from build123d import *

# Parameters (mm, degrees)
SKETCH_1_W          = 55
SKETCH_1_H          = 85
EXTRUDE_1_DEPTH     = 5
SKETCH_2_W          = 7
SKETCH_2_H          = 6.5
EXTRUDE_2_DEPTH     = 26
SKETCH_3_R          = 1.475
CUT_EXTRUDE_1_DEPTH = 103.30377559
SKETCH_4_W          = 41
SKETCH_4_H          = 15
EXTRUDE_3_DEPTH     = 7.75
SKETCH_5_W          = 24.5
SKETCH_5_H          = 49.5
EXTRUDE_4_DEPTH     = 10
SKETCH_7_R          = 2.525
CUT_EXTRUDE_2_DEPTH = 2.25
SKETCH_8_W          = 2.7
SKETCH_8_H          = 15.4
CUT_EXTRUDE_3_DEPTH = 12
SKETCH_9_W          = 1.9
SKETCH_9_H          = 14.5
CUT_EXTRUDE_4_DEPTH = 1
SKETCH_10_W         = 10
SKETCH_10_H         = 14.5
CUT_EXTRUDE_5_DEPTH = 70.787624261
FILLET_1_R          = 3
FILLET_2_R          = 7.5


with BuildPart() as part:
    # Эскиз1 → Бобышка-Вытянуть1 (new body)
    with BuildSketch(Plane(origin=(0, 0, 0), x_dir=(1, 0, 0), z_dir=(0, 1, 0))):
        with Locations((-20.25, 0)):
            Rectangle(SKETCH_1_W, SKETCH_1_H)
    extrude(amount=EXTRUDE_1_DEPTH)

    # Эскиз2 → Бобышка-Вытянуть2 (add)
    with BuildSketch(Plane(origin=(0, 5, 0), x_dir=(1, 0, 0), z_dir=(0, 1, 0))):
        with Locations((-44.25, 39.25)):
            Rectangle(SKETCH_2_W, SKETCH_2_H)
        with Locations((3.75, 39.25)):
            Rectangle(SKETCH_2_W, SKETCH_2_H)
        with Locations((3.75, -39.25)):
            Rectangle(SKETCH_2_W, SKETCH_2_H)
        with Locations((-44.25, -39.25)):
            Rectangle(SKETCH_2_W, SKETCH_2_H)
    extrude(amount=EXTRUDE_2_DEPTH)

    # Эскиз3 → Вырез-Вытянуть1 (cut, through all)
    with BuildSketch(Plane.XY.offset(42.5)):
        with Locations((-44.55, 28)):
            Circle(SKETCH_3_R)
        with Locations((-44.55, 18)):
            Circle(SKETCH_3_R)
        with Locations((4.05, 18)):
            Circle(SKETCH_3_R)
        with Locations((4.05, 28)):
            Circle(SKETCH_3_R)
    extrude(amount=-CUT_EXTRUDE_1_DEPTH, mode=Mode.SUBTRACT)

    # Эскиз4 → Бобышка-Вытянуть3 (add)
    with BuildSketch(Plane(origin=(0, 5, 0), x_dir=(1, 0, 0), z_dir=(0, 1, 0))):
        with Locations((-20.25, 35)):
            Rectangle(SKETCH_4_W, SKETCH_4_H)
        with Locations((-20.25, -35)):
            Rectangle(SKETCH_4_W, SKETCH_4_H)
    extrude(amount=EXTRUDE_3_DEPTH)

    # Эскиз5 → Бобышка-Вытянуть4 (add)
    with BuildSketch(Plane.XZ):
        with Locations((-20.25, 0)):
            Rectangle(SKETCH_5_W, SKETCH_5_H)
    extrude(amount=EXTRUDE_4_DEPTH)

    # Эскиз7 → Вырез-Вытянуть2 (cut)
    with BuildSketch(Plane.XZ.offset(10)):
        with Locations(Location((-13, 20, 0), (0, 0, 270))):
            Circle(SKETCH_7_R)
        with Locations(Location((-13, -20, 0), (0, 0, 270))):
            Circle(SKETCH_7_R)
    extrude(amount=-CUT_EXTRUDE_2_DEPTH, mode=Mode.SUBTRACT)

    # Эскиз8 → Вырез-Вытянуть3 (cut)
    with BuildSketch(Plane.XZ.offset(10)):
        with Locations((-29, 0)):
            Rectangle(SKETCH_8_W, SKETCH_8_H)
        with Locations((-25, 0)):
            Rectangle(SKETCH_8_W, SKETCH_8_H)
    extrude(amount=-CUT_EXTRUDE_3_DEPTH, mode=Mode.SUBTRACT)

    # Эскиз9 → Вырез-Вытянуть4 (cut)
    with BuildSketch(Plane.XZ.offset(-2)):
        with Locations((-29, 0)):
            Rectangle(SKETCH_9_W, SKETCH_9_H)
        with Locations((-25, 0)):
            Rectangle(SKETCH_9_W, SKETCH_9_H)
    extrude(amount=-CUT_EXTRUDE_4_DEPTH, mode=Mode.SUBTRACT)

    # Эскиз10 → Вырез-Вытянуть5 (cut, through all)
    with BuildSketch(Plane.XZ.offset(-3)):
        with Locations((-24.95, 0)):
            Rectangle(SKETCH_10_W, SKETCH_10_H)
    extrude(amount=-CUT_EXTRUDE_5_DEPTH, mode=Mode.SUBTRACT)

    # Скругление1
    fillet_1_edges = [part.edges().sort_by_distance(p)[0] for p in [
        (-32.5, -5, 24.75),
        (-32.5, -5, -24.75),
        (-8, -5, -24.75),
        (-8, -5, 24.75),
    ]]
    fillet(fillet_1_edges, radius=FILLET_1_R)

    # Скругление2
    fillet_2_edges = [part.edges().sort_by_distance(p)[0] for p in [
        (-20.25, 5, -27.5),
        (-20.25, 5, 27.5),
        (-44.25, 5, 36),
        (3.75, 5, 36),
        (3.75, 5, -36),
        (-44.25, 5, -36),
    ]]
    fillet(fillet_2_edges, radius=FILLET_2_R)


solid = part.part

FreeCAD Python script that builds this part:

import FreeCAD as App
import Part
import Sketcher

V = App.Vector
Q = App.Units.Quantity


def edges_at(feature, points):
    """Names of the edges that pass closest to the given points."""
    edges = feature.Shape.Edges
    near = lambda p: min(range(len(edges)), key=lambda i: edges[i].distToShape(Part.Vertex(*p))[0])
    return sorted({f"Edge{near(p) + 1}" for p in points})

doc = App.newDocument("Part")
body = doc.addObject("PartDesign::Body", "Body")

# Sketch on XZ plane
sketch1 = body.newObject("Sketcher::SketchObject", "Sketch")
sketch1.AttachmentSupport = (doc.getObject("XZ_Plane"), [""])
sketch1.MapMode = "FlatFace"
sketch1.addGeometry(Part.LineSegment(V(-47.75, -42.5, 0), V(-47.75, 42.5, 0)), False)
sketch1.addGeometry(Part.LineSegment(V(-47.75, 42.5, 0), V(7.25, 42.5, 0)), False)
sketch1.addGeometry(Part.LineSegment(V(7.25, 42.5, 0), V(7.25, -42.5, 0)), False)
sketch1.addGeometry(Part.LineSegment(V(7.25, -42.5, 0), V(-47.75, -42.5, 0)), False)
sketch1.addConstraint(Sketcher.Constraint("Coincident", 0, 2, 1, 1))
sketch1.addConstraint(Sketcher.Constraint("Coincident", 1, 2, 2, 1))
sketch1.addConstraint(Sketcher.Constraint("Coincident", 2, 2, 3, 1))
sketch1.addConstraint(Sketcher.Constraint("Coincident", 3, 2, 0, 1))
sketch1.addConstraint(Sketcher.Constraint("Vertical", 0))
sketch1.addConstraint(Sketcher.Constraint("Horizontal", 1))
sketch1.addConstraint(Sketcher.Constraint("Vertical", 2))
sketch1.addConstraint(Sketcher.Constraint("Horizontal", 3))
sketch1.addConstraint(Sketcher.Constraint("DistanceX", 1, 1, 1, 2, Q("55 mm")))
sketch1.addConstraint(Sketcher.Constraint("DistanceY", 0, 1, 0, 2, Q("85 mm")))
sketch1.addConstraint(Sketcher.Constraint("DistanceY", -1, 1, 0, 2, Q("42.5 mm")))
sketch1.addConstraint(Sketcher.Constraint("DistanceX", 0, 2, -1, 1, Q("47.75 mm")))
pad1 = body.newObject("PartDesign::Pad", "Pad")
pad1.Profile = sketch1
pad1.Length = 5
pad1.Reversed = True

# Sketch on XZ plane
sketch2 = body.newObject("Sketcher::SketchObject", "Sketch001")
sketch2.AttachmentSupport = (doc.getObject("XZ_Plane"), [""])
sketch2.MapMode = "FlatFace"
sketch2.AttachmentOffset = App.Placement(V(0, 0, -5), App.Rotation())
sketch2.addGeometry(Part.LineSegment(V(-47.75, -42.5, 0), V(-47.75, -36, 0)), False)
sketch2.addGeometry(Part.LineSegment(V(-47.75, -36, 0), V(-40.75, -36, 0)), False)
sketch2.addGeometry(Part.LineSegment(V(-40.75, -36, 0), V(-40.75, -42.5, 0)), False)
sketch2.addGeometry(Part.LineSegment(V(-40.75, -42.5, 0), V(-47.75, -42.5, 0)), False)
sketch2.addGeometry(Part.LineSegment(V(0.25, -42.5, 0), V(0.25, -36, 0)), False)
sketch2.addGeometry(Part.LineSegment(V(0.25, -36, 0), V(7.25, -36, 0)), False)
sketch2.addGeometry(Part.LineSegment(V(7.25, -36, 0), V(7.25, -42.5, 0)), False)
sketch2.addGeometry(Part.LineSegment(V(7.25, -42.5, 0), V(0.25, -42.5, 0)), False)
sketch2.addGeometry(Part.LineSegment(V(0.25, 36, 0), V(0.25, 42.5, 0)), False)
sketch2.addGeometry(Part.LineSegment(V(0.25, 42.5, 0), V(7.25, 42.5, 0)), False)
sketch2.addGeometry(Part.LineSegment(V(7.25, 42.5, 0), V(7.25, 36, 0)), False)
sketch2.addGeometry(Part.LineSegment(V(7.25, 36, 0), V(0.25, 36, 0)), False)
sketch2.addGeometry(Part.LineSegment(V(-47.75, 36, 0), V(-47.75, 42.5, 0)), False)
sketch2.addGeometry(Part.LineSegment(V(-47.75, 42.5, 0), V(-40.75, 42.5, 0)), False)
sketch2.addGeometry(Part.LineSegment(V(-40.75, 42.5, 0), V(-40.75, 36, 0)), False)
sketch2.addGeometry(Part.LineSegment(V(-40.75, 36, 0), V(-47.75, 36, 0)), False)
sketch2.addConstraint(Sketcher.Constraint("Coincident", 0, 2, 1, 1))
sketch2.addConstraint(Sketcher.Constraint("Coincident", 1, 2, 2, 1))
sketch2.addConstraint(Sketcher.Constraint("Coincident", 2, 2, 3, 1))
sketch2.addConstraint(Sketcher.Constraint("Coincident", 3, 2, 0, 1))
sketch2.addConstraint(Sketcher.Constraint("Coincident", 4, 2, 5, 1))
sketch2.addConstraint(Sketcher.Constraint("Coincident", 5, 2, 6, 1))
sketch2.addConstraint(Sketcher.Constraint("Coincident", 6, 2, 7, 1))
sketch2.addConstraint(Sketcher.Constraint("Coincident", 7, 2, 4, 1))
sketch2.addConstraint(Sketcher.Constraint("Coincident", 8, 2, 9, 1))
sketch2.addConstraint(Sketcher.Constraint("Coincident", 9, 2, 10, 1))
sketch2.addConstraint(Sketcher.Constraint("Coincident", 10, 2, 11, 1))
sketch2.addConstraint(Sketcher.Constraint("Coincident", 11, 2, 8, 1))
sketch2.addConstraint(Sketcher.Constraint("Coincident", 12, 2, 13, 1))
sketch2.addConstraint(Sketcher.Constraint("Coincident", 13, 2, 14, 1))
sketch2.addConstraint(Sketcher.Constraint("Coincident", 14, 2, 15, 1))
sketch2.addConstraint(Sketcher.Constraint("Coincident", 15, 2, 12, 1))
sketch2.addConstraint(Sketcher.Constraint("Vertical", 0))
sketch2.addConstraint(Sketcher.Constraint("Horizontal", 1))
sketch2.addConstraint(Sketcher.Constraint("Vertical", 2))
sketch2.addConstraint(Sketcher.Constraint("Horizontal", 3))
sketch2.addConstraint(Sketcher.Constraint("Vertical", 4))
sketch2.addConstraint(Sketcher.Constraint("Horizontal", 5))
sketch2.addConstraint(Sketcher.Constraint("Vertical", 6))
sketch2.addConstraint(Sketcher.Constraint("Horizontal", 7))
sketch2.addConstraint(Sketcher.Constraint("Vertical", 8))
sketch2.addConstraint(Sketcher.Constraint("Horizontal", 9))
sketch2.addConstraint(Sketcher.Constraint("Vertical", 10))
sketch2.addConstraint(Sketcher.Constraint("Horizontal", 11))
sketch2.addConstraint(Sketcher.Constraint("Vertical", 12))
sketch2.addConstraint(Sketcher.Constraint("Horizontal", 13))
sketch2.addConstraint(Sketcher.Constraint("Vertical", 14))
sketch2.addConstraint(Sketcher.Constraint("Horizontal", 15))
sketch2.addConstraint(Sketcher.Constraint("Symmetric", 7, 2, 8, 2, -1))
sketch2.addConstraint(Sketcher.Constraint("Symmetric", 5, 2, 10, 2, -1))
sketch2.addConstraint(Sketcher.Constraint("Symmetric", 3, 2, 12, 2, -1))
sketch2.addConstraint(Sketcher.Constraint("Symmetric", 1, 2, 14, 2, -1))
sketch2.addConstraint(Sketcher.Constraint("Horizontal", 1, 2, 4, 2))
sketch2.addConstraint(Sketcher.Constraint("Horizontal", 3, 2, 6, 2))
sketch2.addConstraint(Sketcher.Constraint("Equal", 3, 5))
sketch2.addConstraint(Sketcher.Constraint("DistanceX", 1, 1, 1, 2, Q("7 mm")))
sketch2.addConstraint(Sketcher.Constraint("DistanceY", 0, 1, 0, 2, Q("6.5 mm")))
sketch2.addConstraint(Sketcher.Constraint("DistanceY", 0, 2, -1, 1, Q("36 mm")))
sketch2.addConstraint(Sketcher.Constraint("DistanceX", 1, 2, 4, 2, Q("41 mm")))
sketch2.addConstraint(Sketcher.Constraint("DistanceX", 0, 2, -1, 1, Q("47.75 mm")))
pad2 = body.newObject("PartDesign::Pad", "Pad001")
pad2.Profile = sketch2
pad2.Length = 26
pad2.Reversed = True

# Sketch on XY plane
sketch3 = body.newObject("Sketcher::SketchObject", "Sketch002")
sketch3.AttachmentSupport = (doc.getObject("XY_Plane"), [""])
sketch3.MapMode = "FlatFace"
sketch3.AttachmentOffset = App.Placement(V(0, 0, 42.5), App.Rotation())
sketch3.addGeometry(Part.Circle(V(-44.55, 28, 0), V(0, 0, 1), 1.475), False)
sketch3.addGeometry(Part.Circle(V(-44.55, 18, 0), V(0, 0, 1), 1.475), False)
sketch3.addGeometry(Part.Circle(V(4.05, 18, 0), V(0, 0, 1), 1.475), False)
sketch3.addGeometry(Part.Circle(V(4.05, 28, 0), V(0, 0, 1), 1.475), False)
sketch3.addConstraint(Sketcher.Constraint("Equal", 0, 1))
sketch3.addConstraint(Sketcher.Constraint("Equal", 1, 2))
sketch3.addConstraint(Sketcher.Constraint("Equal", 2, 3))
sketch3.addConstraint(Sketcher.Constraint("Horizontal", 1, 3, 2, 3))
sketch3.addConstraint(Sketcher.Constraint("Horizontal", 0, 3, 3, 3))
sketch3.addConstraint(Sketcher.Constraint("Vertical", 0, 3, 1, 3))
sketch3.addConstraint(Sketcher.Constraint("Vertical", 2, 3, 3, 3))
sketch3.addConstraint(Sketcher.Constraint("Diameter", 0, Q("2.95 mm")))
sketch3.addConstraint(Sketcher.Constraint("DistanceY", -1, 1, 0, 3, Q("28 mm")))
sketch3.addConstraint(Sketcher.Constraint("DistanceY", -1, 1, 1, 3, Q("18 mm")))
sketch3.addConstraint(Sketcher.Constraint("DistanceX", 1, 3, 2, 3, Q("48.6 mm")))
sketch3.addConstraint(Sketcher.Constraint("DistanceX", 0, 3, -1, 1, Q("44.55 mm")))
pocket1 = body.newObject("PartDesign::Pocket", "Pocket")
pocket1.Profile = sketch3
pocket1.Type = "ThroughAll"

# Sketch on XZ plane
sketch4 = body.newObject("Sketcher::SketchObject", "Sketch003")
sketch4.AttachmentSupport = (doc.getObject("XZ_Plane"), [""])
sketch4.MapMode = "FlatFace"
sketch4.AttachmentOffset = App.Placement(V(0, 0, -5), App.Rotation())
sketch4.addGeometry(Part.LineSegment(V(-40.75, -42.5, 0), V(-40.75, -27.5, 0)), False)
sketch4.addGeometry(Part.LineSegment(V(-40.75, -27.5, 0), V(0.25, -27.5, 0)), False)
sketch4.addGeometry(Part.LineSegment(V(0.25, -27.5, 0), V(0.25, -42.5, 0)), False)
sketch4.addGeometry(Part.LineSegment(V(0.25, -42.5, 0), V(-40.75, -42.5, 0)), False)
sketch4.addGeometry(Part.LineSegment(V(-40.75, 27.5, 0), V(-40.75, 42.5, 0)), False)
sketch4.addGeometry(Part.LineSegment(V(-40.75, 42.5, 0), V(0.25, 42.5, 0)), False)
sketch4.addGeometry(Part.LineSegment(V(0.25, 42.5, 0), V(0.25, 27.5, 0)), False)
sketch4.addGeometry(Part.LineSegment(V(0.25, 27.5, 0), V(-40.75, 27.5, 0)), False)
sketch4.addConstraint(Sketcher.Constraint("Coincident", 0, 2, 1, 1))
sketch4.addConstraint(Sketcher.Constraint("Coincident", 1, 2, 2, 1))
sketch4.addConstraint(Sketcher.Constraint("Coincident", 2, 2, 3, 1))
sketch4.addConstraint(Sketcher.Constraint("Coincident", 3, 2, 0, 1))
sketch4.addConstraint(Sketcher.Constraint("Coincident", 4, 2, 5, 1))
sketch4.addConstraint(Sketcher.Constraint("Coincident", 5, 2, 6, 1))
sketch4.addConstraint(Sketcher.Constraint("Coincident", 6, 2, 7, 1))
sketch4.addConstraint(Sketcher.Constraint("Coincident", 7, 2, 4, 1))
sketch4.addConstraint(Sketcher.Constraint("Vertical", 0))
sketch4.addConstraint(Sketcher.Constraint("Horizontal", 1))
sketch4.addConstraint(Sketcher.Constraint("Vertical", 2))
sketch4.addConstraint(Sketcher.Constraint("Horizontal", 3))
sketch4.addConstraint(Sketcher.Constraint("Vertical", 4))
sketch4.addConstraint(Sketcher.Constraint("Horizontal", 5))
sketch4.addConstraint(Sketcher.Constraint("Vertical", 6))
sketch4.addConstraint(Sketcher.Constraint("Horizontal", 7))
sketch4.addConstraint(Sketcher.Constraint("Symmetric", 3, 2, 4, 2, -1))
sketch4.addConstraint(Sketcher.Constraint("Symmetric", 1, 2, 6, 2, -1))
sketch4.addConstraint(Sketcher.Constraint("DistanceX", 1, 1, 1, 2, Q("41 mm")))
sketch4.addConstraint(Sketcher.Constraint("DistanceY", 0, 1, 0, 2, Q("15 mm")))
sketch4.addConstraint(Sketcher.Constraint("DistanceY", 0, 2, 4, 2, Q("70 mm")))
sketch4.addConstraint(Sketcher.Constraint("DistanceX", 0, 2, -1, 1, Q("40.75 mm")))
pad3 = body.newObject("PartDesign::Pad", "Pad002")
pad3.Profile = sketch4
pad3.Length = 7.75
pad3.Reversed = True

# Sketch on XZ plane
sketch5 = body.newObject("Sketcher::SketchObject", "Sketch004")
sketch5.AttachmentSupport = (doc.getObject("XZ_Plane"), [""])
sketch5.MapMode = "FlatFace"
sketch5.addGeometry(Part.LineSegment(V(-32.5, 24.75, 0), V(-32.5, -24.75, 0)), False)
sketch5.addGeometry(Part.LineSegment(V(-32.5, -24.75, 0), V(-8, -24.75, 0)), False)
sketch5.addGeometry(Part.LineSegment(V(-8, -24.75, 0), V(-8, 24.75, 0)), False)
sketch5.addGeometry(Part.LineSegment(V(-8, 24.75, 0), V(-32.5, 24.75, 0)), False)
sketch5.addConstraint(Sketcher.Constraint("Coincident", 0, 2, 1, 1))
sketch5.addConstraint(Sketcher.Constraint("Coincident", 1, 2, 2, 1))
sketch5.addConstraint(Sketcher.Constraint("Coincident", 2, 2, 3, 1))
sketch5.addConstraint(Sketcher.Constraint("Coincident", 3, 2, 0, 1))
sketch5.addConstraint(Sketcher.Constraint("Vertical", 0))
sketch5.addConstraint(Sketcher.Constraint("Horizontal", 1))
sketch5.addConstraint(Sketcher.Constraint("Vertical", 2))
sketch5.addConstraint(Sketcher.Constraint("Horizontal", 3))
sketch5.addConstraint(Sketcher.Constraint("DistanceX", 1, 1, 1, 2, Q("24.5 mm")))
sketch5.addConstraint(Sketcher.Constraint("DistanceY", 0, 2, 0, 1, Q("49.5 mm")))
sketch5.addConstraint(Sketcher.Constraint("DistanceX", 1, 2, -1, 1, Q("8 mm")))
sketch5.addConstraint(Sketcher.Constraint("DistanceY", 0, 2, -1, 1, Q("24.75 mm")))
pad4 = body.newObject("PartDesign::Pad", "Pad003")
pad4.Profile = sketch5
pad4.Length = 10

# Sketch on XZ plane
sketch6 = body.newObject("Sketcher::SketchObject", "Sketch005")
sketch6.AttachmentSupport = (doc.getObject("XZ_Plane"), [""])
sketch6.MapMode = "FlatFace"
sketch6.AttachmentOffset = App.Placement(V(0, 0, 10), App.Rotation())
sketch6.addGeometry(Part.Circle(V(-13, 20, 0), V(0, 0, 1), 2.525), False)
sketch6.addGeometry(Part.Circle(V(-13, -20, 0), V(0, 0, 1), 2.525), False)
sketch6.addConstraint(Sketcher.Constraint("Equal", 0, 1))
sketch6.addConstraint(Sketcher.Constraint("Symmetric", 0, 3, 1, 3, -1))
sketch6.addConstraint(Sketcher.Constraint("Diameter", 0, Q("5.05 mm")))
sketch6.addConstraint(Sketcher.Constraint("DistanceX", 0, 3, -1, 1, Q("13 mm")))
sketch6.addConstraint(Sketcher.Constraint("DistanceY", -1, 1, 0, 3, Q("20 mm")))
pocket2 = body.newObject("PartDesign::Pocket", "Pocket001")
pocket2.Profile = sketch6
pocket2.Length = 2.25

# Sketch on XZ plane
sketch7 = body.newObject("Sketcher::SketchObject", "Sketch006")
sketch7.AttachmentSupport = (doc.getObject("XZ_Plane"), [""])
sketch7.MapMode = "FlatFace"
sketch7.AttachmentOffset = App.Placement(V(0, 0, 10), App.Rotation())
sketch7.addGeometry(Part.LineSegment(V(-30.35, 7.7, 0), V(-30.35, -7.7, 0)), False)
sketch7.addGeometry(Part.LineSegment(V(-30.35, -7.7, 0), V(-27.65, -7.7, 0)), False)
sketch7.addGeometry(Part.LineSegment(V(-27.65, -7.7, 0), V(-27.65, 7.7, 0)), False)
sketch7.addGeometry(Part.LineSegment(V(-27.65, 7.7, 0), V(-30.35, 7.7, 0)), False)
sketch7.addGeometry(Part.LineSegment(V(-26.35, 7.7, 0), V(-26.35, -7.7, 0)), False)
sketch7.addGeometry(Part.LineSegment(V(-26.35, -7.7, 0), V(-23.65, -7.7, 0)), False)
sketch7.addGeometry(Part.LineSegment(V(-23.65, -7.7, 0), V(-23.65, 7.7, 0)), False)
sketch7.addGeometry(Part.LineSegment(V(-23.65, 7.7, 0), V(-26.35, 7.7, 0)), False)
sketch7.addConstraint(Sketcher.Constraint("Coincident", 0, 2, 1, 1))
sketch7.addConstraint(Sketcher.Constraint("Coincident", 1, 2, 2, 1))
sketch7.addConstraint(Sketcher.Constraint("Coincident", 2, 2, 3, 1))
sketch7.addConstraint(Sketcher.Constraint("Coincident", 3, 2, 0, 1))
sketch7.addConstraint(Sketcher.Constraint("Coincident", 4, 2, 5, 1))
sketch7.addConstraint(Sketcher.Constraint("Coincident", 5, 2, 6, 1))
sketch7.addConstraint(Sketcher.Constraint("Coincident", 6, 2, 7, 1))
sketch7.addConstraint(Sketcher.Constraint("Coincident", 7, 2, 4, 1))
sketch7.addConstraint(Sketcher.Constraint("Vertical", 0))
sketch7.addConstraint(Sketcher.Constraint("Horizontal", 1))
sketch7.addConstraint(Sketcher.Constraint("Vertical", 2))
sketch7.addConstraint(Sketcher.Constraint("Horizontal", 3))
sketch7.addConstraint(Sketcher.Constraint("Vertical", 4))
sketch7.addConstraint(Sketcher.Constraint("Horizontal", 5))
sketch7.addConstraint(Sketcher.Constraint("Vertical", 6))
sketch7.addConstraint(Sketcher.Constraint("Horizontal", 7))
sketch7.addConstraint(Sketcher.Constraint("Horizontal", 1, 2, 4, 2))
sketch7.addConstraint(Sketcher.Constraint("Horizontal", 3, 2, 6, 2))
sketch7.addConstraint(Sketcher.Constraint("Equal", 3, 5))
sketch7.addConstraint(Sketcher.Constraint("DistanceX", 1, 1, 1, 2, Q("2.7 mm")))
sketch7.addConstraint(Sketcher.Constraint("DistanceY", 0, 2, 0, 1, Q("15.4 mm")))
sketch7.addConstraint(Sketcher.Constraint("DistanceX", 0, 2, 4, 2, Q("4 mm")))
sketch7.addConstraint(Sketcher.Constraint("DistanceY", 0, 2, -1, 1, Q("7.7 mm")))
sketch7.addConstraint(Sketcher.Constraint("DistanceX", 0, 2, -1, 1, Q("30.35 mm")))
pocket3 = body.newObject("PartDesign::Pocket", "Pocket002")
pocket3.Profile = sketch7
pocket3.Length = 12

# Sketch on XZ plane
sketch8 = body.newObject("Sketcher::SketchObject", "Sketch007")
sketch8.AttachmentSupport = (doc.getObject("XZ_Plane"), [""])
sketch8.MapMode = "FlatFace"
sketch8.AttachmentOffset = App.Placement(V(0, 0, -2), App.Rotation())
sketch8.addGeometry(Part.LineSegment(V(-29.95, 7.25, 0), V(-29.95, -7.25, 0)), False)
sketch8.addGeometry(Part.LineSegment(V(-29.95, -7.25, 0), V(-28.05, -7.25, 0)), False)
sketch8.addGeometry(Part.LineSegment(V(-28.05, -7.25, 0), V(-28.05, 7.25, 0)), False)
sketch8.addGeometry(Part.LineSegment(V(-28.05, 7.25, 0), V(-29.95, 7.25, 0)), False)
sketch8.addGeometry(Part.LineSegment(V(-25.95, 7.25, 0), V(-25.95, -7.25, 0)), False)
sketch8.addGeometry(Part.LineSegment(V(-25.95, -7.25, 0), V(-24.05, -7.25, 0)), False)
sketch8.addGeometry(Part.LineSegment(V(-24.05, -7.25, 0), V(-24.05, 7.25, 0)), False)
sketch8.addGeometry(Part.LineSegment(V(-24.05, 7.25, 0), V(-25.95, 7.25, 0)), False)
sketch8.addConstraint(Sketcher.Constraint("Coincident", 0, 2, 1, 1))
sketch8.addConstraint(Sketcher.Constraint("Coincident", 1, 2, 2, 1))
sketch8.addConstraint(Sketcher.Constraint("Coincident", 2, 2, 3, 1))
sketch8.addConstraint(Sketcher.Constraint("Coincident", 3, 2, 0, 1))
sketch8.addConstraint(Sketcher.Constraint("Coincident", 4, 2, 5, 1))
sketch8.addConstraint(Sketcher.Constraint("Coincident", 5, 2, 6, 1))
sketch8.addConstraint(Sketcher.Constraint("Coincident", 6, 2, 7, 1))
sketch8.addConstraint(Sketcher.Constraint("Coincident", 7, 2, 4, 1))
sketch8.addConstraint(Sketcher.Constraint("Vertical", 0))
sketch8.addConstraint(Sketcher.Constraint("Horizontal", 1))
sketch8.addConstraint(Sketcher.Constraint("Vertical", 2))
sketch8.addConstraint(Sketcher.Constraint("Horizontal", 3))
sketch8.addConstraint(Sketcher.Constraint("Vertical", 4))
sketch8.addConstraint(Sketcher.Constraint("Horizontal", 5))
sketch8.addConstraint(Sketcher.Constraint("Vertical", 6))
sketch8.addConstraint(Sketcher.Constraint("Horizontal", 7))
sketch8.addConstraint(Sketcher.Constraint("Horizontal", 1, 2, 4, 2))
sketch8.addConstraint(Sketcher.Constraint("Horizontal", 3, 2, 6, 2))
sketch8.addConstraint(Sketcher.Constraint("Equal", 3, 5))
sketch8.addConstraint(Sketcher.Constraint("DistanceX", 1, 1, 1, 2, Q("1.9 mm")))
sketch8.addConstraint(Sketcher.Constraint("DistanceY", 0, 2, 0, 1, Q("14.5 mm")))
sketch8.addConstraint(Sketcher.Constraint("DistanceX", 0, 2, 4, 2, Q("4 mm")))
sketch8.addConstraint(Sketcher.Constraint("DistanceX", 0, 2, -1, 1, Q("29.95 mm")))
sketch8.addConstraint(Sketcher.Constraint("DistanceY", 0, 2, -1, 1, Q("7.25 mm")))
pocket4 = body.newObject("PartDesign::Pocket", "Pocket003")
pocket4.Profile = sketch8
pocket4.Length = 1

# Sketch on XZ plane
sketch9 = body.newObject("Sketcher::SketchObject", "Sketch008")
sketch9.AttachmentSupport = (doc.getObject("XZ_Plane"), [""])
sketch9.MapMode = "FlatFace"
sketch9.AttachmentOffset = App.Placement(V(0, 0, -3), App.Rotation())
sketch9.addGeometry(Part.LineSegment(V(-29.95, 7.25, 0), V(-29.95, -7.25, 0)), False)
sketch9.addGeometry(Part.LineSegment(V(-29.95, -7.25, 0), V(-19.95, -7.25, 0)), False)
sketch9.addGeometry(Part.LineSegment(V(-19.95, -7.25, 0), V(-19.95, 7.25, 0)), False)
sketch9.addGeometry(Part.LineSegment(V(-19.95, 7.25, 0), V(-29.95, 7.25, 0)), False)
sketch9.addConstraint(Sketcher.Constraint("Coincident", 0, 2, 1, 1))
sketch9.addConstraint(Sketcher.Constraint("Coincident", 1, 2, 2, 1))
sketch9.addConstraint(Sketcher.Constraint("Coincident", 2, 2, 3, 1))
sketch9.addConstraint(Sketcher.Constraint("Coincident", 3, 2, 0, 1))
sketch9.addConstraint(Sketcher.Constraint("Vertical", 0))
sketch9.addConstraint(Sketcher.Constraint("Horizontal", 1))
sketch9.addConstraint(Sketcher.Constraint("Vertical", 2))
sketch9.addConstraint(Sketcher.Constraint("Horizontal", 3))
sketch9.addConstraint(Sketcher.Constraint("DistanceX", 1, 1, 1, 2, Q("10 mm")))
sketch9.addConstraint(Sketcher.Constraint("DistanceY", 0, 2, 0, 1, Q("14.5 mm")))
sketch9.addConstraint(Sketcher.Constraint("DistanceX", 0, 2, -1, 1, Q("29.95 mm")))
sketch9.addConstraint(Sketcher.Constraint("DistanceY", 0, 2, -1, 1, Q("7.25 mm")))
pocket5 = body.newObject("PartDesign::Pocket", "Pocket004")
pocket5.Profile = sketch9
pocket5.Type = "ThroughAll"
doc.recompute()

fillet = body.newObject("PartDesign::Fillet", "Fillet")
fillet.Base = (pocket5, edges_at(pocket5, [
    (-32.5, -5, 24.75),
    (-32.5, -5, -24.75),
    (-8, -5, -24.75),
    (-8, -5, 24.75),
]))
fillet.Radius = 3
doc.recompute()

fillet2 = body.newObject("PartDesign::Fillet", "Fillet001")
fillet2.Base = (fillet, edges_at(fillet, [
    (-20.25, 5, -27.5),
    (-20.25, 5, 27.5),
    (-44.25, 5, 36),
    (3.75, 5, 36),
    (3.75, 5, -36),
    (-44.25, 5, -36),
]))
fillet2.Radius = 7.5

doc.recompute()
